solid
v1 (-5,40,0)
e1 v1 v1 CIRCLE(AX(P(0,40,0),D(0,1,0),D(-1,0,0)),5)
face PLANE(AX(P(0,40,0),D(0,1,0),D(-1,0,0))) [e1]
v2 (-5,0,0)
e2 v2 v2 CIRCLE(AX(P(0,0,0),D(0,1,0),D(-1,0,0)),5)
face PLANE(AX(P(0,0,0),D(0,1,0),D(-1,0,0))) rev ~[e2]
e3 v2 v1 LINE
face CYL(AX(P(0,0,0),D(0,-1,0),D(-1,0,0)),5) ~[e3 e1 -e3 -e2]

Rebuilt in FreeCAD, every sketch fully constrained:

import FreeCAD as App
import Part
import Sketcher

V = App.Vector
Q = App.Units.Quantity

doc = App.newDocument("Part")
body = doc.addObject("PartDesign::Body", "Body")

sketch1 = body.newObject("Sketcher::SketchObject", "Sketch")
sketch1.AttachmentSupport = (doc.getObject("XZ_Plane"), [""])
sketch1.MapMode = "FlatFace"
sketch1.addGeometry(Part.Circle(V(0, 0, 0), V(0, 0, 1), 5), False)
sketch1.addConstraint([
    Sketcher.Constraint("Coincident", 0, 3, -1, 1),
    Sketcher.Constraint("Diameter", 0, Q("10 mm")),
])
pad1 = body.newObject("PartDesign::Pad", "Pad")
pad1.Profile = sketch1
pad1.Length = 40
pad1.Reversed = True

doc.recompute()
